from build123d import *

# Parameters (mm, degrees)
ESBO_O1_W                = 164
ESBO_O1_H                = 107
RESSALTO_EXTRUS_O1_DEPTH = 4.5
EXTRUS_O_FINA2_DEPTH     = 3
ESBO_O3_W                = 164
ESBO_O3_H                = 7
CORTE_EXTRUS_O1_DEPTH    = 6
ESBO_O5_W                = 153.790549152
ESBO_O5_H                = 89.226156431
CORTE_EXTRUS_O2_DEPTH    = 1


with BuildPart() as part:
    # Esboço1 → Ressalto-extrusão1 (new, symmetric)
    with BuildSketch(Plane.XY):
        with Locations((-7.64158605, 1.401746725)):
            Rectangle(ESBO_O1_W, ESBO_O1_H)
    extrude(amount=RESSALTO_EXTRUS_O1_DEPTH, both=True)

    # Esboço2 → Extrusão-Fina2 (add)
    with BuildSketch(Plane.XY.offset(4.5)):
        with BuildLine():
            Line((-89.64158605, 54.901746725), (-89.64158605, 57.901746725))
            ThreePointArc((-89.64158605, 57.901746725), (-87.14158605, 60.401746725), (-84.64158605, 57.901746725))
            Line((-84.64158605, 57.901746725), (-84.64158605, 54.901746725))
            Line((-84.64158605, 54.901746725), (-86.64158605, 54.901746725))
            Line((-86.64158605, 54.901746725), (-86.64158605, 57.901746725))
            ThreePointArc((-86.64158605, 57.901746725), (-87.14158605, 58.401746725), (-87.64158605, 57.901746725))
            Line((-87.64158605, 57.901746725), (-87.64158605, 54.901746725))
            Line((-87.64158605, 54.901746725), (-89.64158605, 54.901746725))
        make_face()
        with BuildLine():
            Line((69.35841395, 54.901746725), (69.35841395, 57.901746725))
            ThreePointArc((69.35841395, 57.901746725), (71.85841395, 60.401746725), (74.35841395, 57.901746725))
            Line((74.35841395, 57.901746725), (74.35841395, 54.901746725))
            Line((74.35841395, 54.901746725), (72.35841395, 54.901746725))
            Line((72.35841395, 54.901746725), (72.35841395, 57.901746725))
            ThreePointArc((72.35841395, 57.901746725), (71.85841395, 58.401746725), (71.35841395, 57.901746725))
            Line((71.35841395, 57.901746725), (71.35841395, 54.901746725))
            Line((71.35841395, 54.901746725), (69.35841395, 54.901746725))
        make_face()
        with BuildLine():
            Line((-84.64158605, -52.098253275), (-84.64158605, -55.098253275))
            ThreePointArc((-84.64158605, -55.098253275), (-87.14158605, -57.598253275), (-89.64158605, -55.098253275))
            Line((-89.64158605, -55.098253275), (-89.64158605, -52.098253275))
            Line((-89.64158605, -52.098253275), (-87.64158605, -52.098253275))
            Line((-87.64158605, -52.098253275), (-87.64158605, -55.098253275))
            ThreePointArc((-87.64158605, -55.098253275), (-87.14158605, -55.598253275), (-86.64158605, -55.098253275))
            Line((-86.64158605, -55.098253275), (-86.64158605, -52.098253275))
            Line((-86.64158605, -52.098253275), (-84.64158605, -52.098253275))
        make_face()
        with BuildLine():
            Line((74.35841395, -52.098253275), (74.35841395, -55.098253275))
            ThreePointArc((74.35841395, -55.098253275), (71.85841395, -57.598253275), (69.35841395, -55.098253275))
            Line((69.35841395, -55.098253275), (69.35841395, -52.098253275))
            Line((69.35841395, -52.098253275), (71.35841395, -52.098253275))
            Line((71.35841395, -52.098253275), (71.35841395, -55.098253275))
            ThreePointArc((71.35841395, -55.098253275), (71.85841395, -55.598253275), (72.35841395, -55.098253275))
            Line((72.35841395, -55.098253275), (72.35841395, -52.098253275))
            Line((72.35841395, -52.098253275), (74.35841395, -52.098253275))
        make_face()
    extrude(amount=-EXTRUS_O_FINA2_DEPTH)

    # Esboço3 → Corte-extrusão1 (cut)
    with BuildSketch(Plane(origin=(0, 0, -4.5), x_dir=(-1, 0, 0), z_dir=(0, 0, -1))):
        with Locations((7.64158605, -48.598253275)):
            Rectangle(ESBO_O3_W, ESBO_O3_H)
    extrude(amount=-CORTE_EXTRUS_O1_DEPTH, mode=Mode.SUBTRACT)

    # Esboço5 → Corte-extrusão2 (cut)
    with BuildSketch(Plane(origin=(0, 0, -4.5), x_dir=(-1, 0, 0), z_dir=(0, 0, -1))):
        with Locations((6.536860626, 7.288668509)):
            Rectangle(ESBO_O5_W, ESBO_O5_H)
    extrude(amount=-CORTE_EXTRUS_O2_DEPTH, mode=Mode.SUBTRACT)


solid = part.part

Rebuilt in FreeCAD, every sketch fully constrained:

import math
import FreeCAD as App
import Part
import Sketcher
from FreeCAD import Vector


def add_polygon(sketch, points):
    """Adds a closed chain of lines whose ends are joined by coincident constraints."""
    first, n = sketch.GeometryCount, len(points)
    for a, b in zip(points, points[1:] + points[:1]):
        sketch.addGeometry(Part.LineSegment(App.Vector(*a, 0), App.Vector(*b, 0)), False)
    for i in range(n):
        sketch.addConstraint(Sketcher.Constraint("Coincident", first + i, 2, first + (i + 1) % n, 1))

doc = App.newDocument("Part")
params = doc.addObject("Spreadsheet::Sheet", "Params")
for row, (alias, value) in enumerate([
    ("sketch1_width", "164 mm"),
    ("sketch1_height", "107 mm"),
    ("pad1_length", "9 mm"),
    ("sketch2_radius", "0.5 mm"),
    ("sketch2_radius2", "2.5 mm"),
    ("sketch2_height", "3 mm"),
    ("pad2_length", "3 mm"),
    ("sketch3_width", "164 mm"),
    ("sketch3_height", "7 mm"),
    ("pocket1_length", "6 mm"),
    ("pocket2_length", "1 mm"),
], start=1):
    params.set(f"A{row}", alias)
    params.set(f"B{row}", "=" + value)
    params.setAlias(f"B{row}", alias)

body = doc.addObject("PartDesign::Body", "Body")

# Sketch on XY plane
sketch1 = body.newObject("Sketcher::SketchObject", "Sketch")
sketch1.AttachmentSupport = (doc.getObject("XY_Plane"), [""])
sketch1.MapMode = "FlatFace"
add_polygon(sketch1, [(-90, 55), (-90, -52), (74, -52), (74, 55)])  # lines 0-3
sketch1.addConstraint([
    Sketcher.Constraint("Vertical", 0),
    Sketcher.Constraint("Horizontal", 1),
    Sketcher.Constraint("Vertical", 2),
    Sketcher.Constraint("Horizontal", 3),
    Sketcher.Constraint("DistanceX", 1, 1, 1, 2, 164.0),
    Sketcher.Constraint("DistanceY", 0, 2, 0, 1, 107.0),
    Sketcher.Constraint("DistanceX", 0, 2, -1, 1, 89.641586),
    Sketcher.Constraint("DistanceY", 0, 2, -1, 1, 52.098253),
])
sketch1.setExpression("Constraints[8]", "Params.sketch1_width")
sketch1.setExpression("Constraints[9]", "Params.sketch1_height")
pad1 = body.newObject("PartDesign::Pad", "Pad")
pad1.Profile = sketch1
pad1.setExpression("Length", "Params.pad1_length")
pad1.Midplane = True

# Sketch on XY plane
sketch2 = body.newObject("Sketcher::SketchObject", "Sketch001")
sketch2.AttachmentSupport = (doc.getObject("XY_Plane"), [""])
sketch2.MapMode = "FlatFace"
sketch2.AttachmentOffset = App.Placement(Vector(0, 0, 4.5), App.Rotation())
sketch2.addGeometry([
    Part.LineSegment(Vector(-89.6, 57.9, 0), Vector(-89.6, 54.9, 0)),  # 0
    Part.LineSegment(Vector(-89.6, 54.9, 0), Vector(-87.6, 54.9, 0)),  # 1
    Part.LineSegment(Vector(-87.6, 54.9, 0), Vector(-87.6, 57.9, 0)),  # 2
    Part.ArcOfCircle(Part.Circle(Vector(-87.1, 57.9, 0), Vector(0, 0, 1), 0.5), math.radians(0), math.radians(180)),  # 3
    Part.LineSegment(Vector(-86.6, 57.9, 0), Vector(-86.6, 54.9, 0)),  # 4
    Part.LineSegment(Vector(-86.6, 54.9, 0), Vector(-84.6, 54.9, 0)),  # 5
    Part.LineSegment(Vector(-84.6, 54.9, 0), Vector(-84.6, 57.9, 0)),  # 6
    Part.ArcOfCircle(Part.Circle(Vector(-87.1, 57.9, 0), Vector(0, 0, 1), 2.5), math.radians(0), math.radians(180)),  # 7
    Part.LineSegment(Vector(69.4, 57.9, 0), Vector(69.4, 54.9, 0)),  # 8
    Part.LineSegment(Vector(69.4, 54.9, 0), Vector(71.4, 54.9, 0)),  # 9
    Part.LineSegment(Vector(71.4, 54.9, 0), Vector(71.4, 57.9, 0)),  # 10
    Part.ArcOfCircle(Part.Circle(Vector(71.9, 57.9, 0), Vector(0, 0, 1), 0.5), math.radians(0), math.radians(180)),  # 11
    Part.LineSegment(Vector(72.4, 57.9, 0), Vector(72.4, 54.9, 0)),  # 12
    Part.LineSegment(Vector(72.4, 54.9, 0), Vector(74.4, 54.9, 0)),  # 13
    Part.LineSegment(Vector(74.4, 54.9, 0), Vector(74.4, 57.9, 0)),  # 14
    Part.ArcOfCircle(Part.Circle(Vector(71.9, 57.9, 0), Vector(0, 0, 1), 2.5), math.radians(0), math.radians(180)),  # 15
    Part.LineSegment(Vector(-84.6, -55.1, 0), Vector(-84.6, -52.1, 0)),  # 16
    Part.LineSegment(Vector(-84.6, -52.1, 0), Vector(-86.6, -52.1, 0)),  # 17
    Part.LineSegment(Vector(-86.6, -52.1, 0), Vector(-86.6, -55.1, 0)),  # 18
    Part.ArcOfCircle(Part.Circle(Vector(-87.1, -55.1, 0), Vector(0, 0, 1), 0.5), math.radians(180), math.radians(360)),  # 19
    Part.LineSegment(Vector(-87.6, -55.1, 0), Vector(-87.6, -52.1, 0)),  # 20
    Part.LineSegment(Vector(-87.6, -52.1, 0), Vector(-89.6, -52.1, 0)),  # 21
    Part.LineSegment(Vector(-89.6, -52.1, 0), Vector(-89.6, -55.1, 0)),  # 22
    Part.ArcOfCircle(Part.Circle(Vector(-87.1, -55.1, 0), Vector(0, 0, 1), 2.5), math.radians(180), math.radians(360)),  # 23
    Part.LineSegment(Vector(74.4, -55.1, 0), Vector(74.4, -52.1, 0)),  # 24
    Part.LineSegment(Vector(74.4, -52.1, 0), Vector(72.4, -52.1, 0)),  # 25
    Part.LineSegment(Vector(72.4, -52.1, 0), Vector(72.4, -55.1, 0)),  # 26
    Part.ArcOfCircle(Part.Circle(Vector(71.9, -55.1, 0), Vector(0, 0, 1), 0.5), math.radians(180), math.radians(360)),  # 27
    Part.LineSegment(Vector(71.4, -55.1, 0), Vector(71.4, -52.1, 0)),  # 28
    Part.LineSegment(Vector(71.4, -52.1, 0), Vector(69.4, -52.1, 0)),  # 29
    Part.LineSegment(Vector(69.4, -52.1, 0), Vector(69.4, -55.1, 0)),  # 30
    Part.ArcOfCircle(Part.Circle(Vector(71.9, -55.1, 0), Vector(0, 0, 1), 2.5), math.radians(180), math.radians(360)),  # 31
], False)
sketch2.addConstraint([
    Sketcher.Constraint("Coincident", 0, 2, 1, 1),
    Sketcher.Constraint("Coincident", 1, 2, 2, 1),
    Sketcher.Constraint("Tangent", 2, 2, 3, 2),
    Sketcher.Constraint("Tangent", 3, 1, 4, 1),
    Sketcher.Constraint("Coincident", 4, 2, 5, 1),
    Sketcher.Constraint("Coincident", 5, 2, 6, 1),
    Sketcher.Constraint("Tangent", 6, 2, 7, 1),
    Sketcher.Constraint("Tangent", 7, 2, 0, 1),
    Sketcher.Constraint("Coincident", 8, 2, 9, 1),
    Sketcher.Constraint("Coincident", 9, 2, 10, 1),
    Sketcher.Constraint("Tangent", 10, 2, 11, 2),
    Sketcher.Constraint("Tangent", 11, 1, 12, 1),
    Sketcher.Constraint("Coincident", 12, 2, 13, 1),
    Sketcher.Constraint("Coincident", 13, 2, 14, 1),
    Sketcher.Constraint("Tangent", 14, 2, 15, 1),
    Sketcher.Constraint("Tangent", 15, 2, 8, 1),
    Sketcher.Constraint("Coincident", 16, 2, 17, 1),
    Sketcher.Constraint("Coincident", 17, 2, 18, 1),
    Sketcher.Constraint("Tangent", 18, 2, 19, 2),
    Sketcher.Constraint("Tangent", 19, 1, 20, 1),
    Sketcher.Constraint("Coincident", 20, 2, 21, 1),
    Sketcher.Constraint("Coincident", 21, 2, 22, 1),
    Sketcher.Constraint("Tangent", 22, 2, 23, 1),
    Sketcher.Constraint("Tangent", 23, 2, 16, 1),
    Sketcher.Constraint("Coincident", 24, 2, 25, 1),
    Sketcher.Constraint("Coincident", 25, 2, 26, 1),
    Sketcher.Constraint("Tangent", 26, 2, 27, 2),
    Sketcher.Constraint("Tangent", 27, 1, 28, 1),
    Sketcher.Constraint("Coincident", 28, 2, 29, 1),
    Sketcher.Constraint("Coincident", 29, 2, 30, 1),
    Sketcher.Constraint("Tangent", 30, 2, 31, 1),
    Sketcher.Constraint("Tangent", 31, 2, 24, 1),
    Sketcher.Constraint("Vertical", 0),
    Sketcher.Constraint("Horizontal", 1),
    Sketcher.Constraint("Vertical", 2),
    Sketcher.Constraint("Vertical", 4),
    Sketcher.Constraint("Horizontal", 5),
    Sketcher.Constraint("Vertical", 6),
    Sketcher.Constraint("Vertical", 8),
    Sketcher.Constraint("Horizontal", 9),
    Sketcher.Constraint("Vertical", 10),
    Sketcher.Constraint("Vertical", 12),
    Sketcher.Constraint("Horizontal", 13),
    Sketcher.Constraint("Vertical", 14),
    Sketcher.Constraint("Vertical", 16),
    Sketcher.Constraint("Horizontal", 17),
    Sketcher.Constraint("Vertical", 18),
    Sketcher.Constraint("Vertical", 20),
    Sketcher.Constraint("Horizontal", 21),
    Sketcher.Constraint("Vertical", 22),
    Sketcher.Constraint("Vertical", 24),
    Sketcher.Constraint("Horizontal", 25),
    Sketcher.Constraint("Vertical", 26),
    Sketcher.Constraint("Vertical", 28),
    Sketcher.Constraint("Horizontal", 29),
    Sketcher.Constraint("Vertical", 30),
    Sketcher.Constraint("Coincident", 7, 3, 3, 3),
    Sketcher.Constraint("Coincident", 15, 3, 11, 3),
    Sketcher.Constraint("Coincident", 23, 3, 19, 3),
    Sketcher.Constraint("Coincident", 31, 3, 27, 3),
    Sketcher.Constraint("Equal", 3, 11),
    Sketcher.Constraint("Equal", 7, 15),
    Sketcher.Constraint("Equal", 11, 19),
    Sketcher.Constraint("Equal", 15, 23),
    Sketcher.Constraint("Equal", 19, 27),
    Sketcher.Constraint("Equal", 23, 31),
    Sketcher.Constraint("Horizontal", 7, 3, 11, 3),
    Sketcher.Constraint("Horizontal", 23, 3, 27, 3),
    Sketcher.Constraint("Horizontal", 1, 2, 4, 2),
    Sketcher.Constraint("Horizontal", 5, 2, 8, 2),
    Sketcher.Constraint("Horizontal", 9, 2, 12, 2),
    Sketcher.Constraint("Horizontal", 17, 2, 20, 2),
    Sketcher.Constraint("Horizontal", 21, 2, 24, 2),
    Sketcher.Constraint("Horizontal", 25, 2, 28, 2),
    Sketcher.Constraint("Vertical", 7, 3, 19, 3),
    Sketcher.Constraint("Vertical", 15, 3, 27, 3),
    Sketcher.Constraint("Equal", 14, 16),
    Sketcher.Constraint("Radius", 3, 0.5),
    Sketcher.Constraint("Radius", 7, 2.5),
    Sketcher.Constraint("DistanceY", 0, 2, 0, 1, 3.0),
    Sketcher.Constraint("DistanceX", 3, 3, 11, 3, 159.0),
    Sketcher.Constraint("DistanceY", 19, 3, 3, 3, 113.0),
    Sketcher.Constraint("DistanceX", 3, 3, -1, 1, 87.141586),
    Sketcher.Constraint("DistanceY", -1, 1, 3, 3, 57.901747),
])
sketch2.setExpression("Constraints[77]", "Params.sketch2_radius")
sketch2.setExpression("Constraints[78]", "Params.sketch2_radius2")
sketch2.setExpression("Constraints[79]", "Params.sketch2_height")
pad2 = body.newObject("PartDesign::Pad", "Pad001")
pad2.Profile = sketch2
pad2.setExpression("Length", "Params.pad2_length")
pad2.Reversed = True

# Sketch on XY plane
sketch3 = body.newObject("Sketcher::SketchObject", "Sketch002")
sketch3.AttachmentSupport = (doc.getObject("XY_Plane"), [""])
sketch3.MapMode = "FlatFace"
sketch3.AttachmentOffset = App.Placement(Vector(0, 0, -4.5), App.Rotation())
add_polygon(sketch3, [(74, -45), (74, -52), (-90, -52), (-90, -45)])  # lines 0-3
sketch3.addConstraint([
    Sketcher.Constraint("Vertical", 0),
    Sketcher.Constraint("Horizontal", 1),
    Sketcher.Constraint("Vertical", 2),
    Sketcher.Constraint("Horizontal", 3),
    Sketcher.Constraint("DistanceX", 1, 2, 1, 1, 164.0),
    Sketcher.Constraint("DistanceY", 0, 2, 0, 1, 7.0),
    Sketcher.Constraint("DistanceX", -1, 1, 0, 2, 74.358414),
    Sketcher.Constraint("DistanceY", 0, 2, -1, 1, 52.098253),
])
sketch3.setExpression("Constraints[8]", "Params.sketch3_width")
sketch3.setExpression("Constraints[9]", "Params.sketch3_height")
pocket1 = body.newObject("PartDesign::Pocket", "Pocket")
pocket1.Profile = sketch3
pocket1.setExpression("Length", "Params.pocket1_length")
pocket1.Reversed = True

# Sketch on XY plane
sketch4 = body.newObject("Sketcher::SketchObject", "Sketch003")
sketch4.AttachmentSupport = (doc.getObject("XY_Plane"), [""])
sketch4.MapMode = "FlatFace"
sketch4.AttachmentOffset = App.Placement(Vector(0, 0, -4.5), App.Rotation())
add_polygon(sketch4, [(70, 52), (70, -37), (-83, -37), (-83, 52)])  # lines 0-3
sketch4.addConstraint([
    Sketcher.Constraint("Vertical", 0),
    Sketcher.Constraint("Horizontal", 1),
    Sketcher.Constraint("Vertical", 2),
    Sketcher.Constraint("Horizontal", 3),
    Sketcher.Constraint("DistanceX", 1, 2, 1, 1, 153.790549),
    Sketcher.Constraint("DistanceY", 0, 2, 0, 1, 89.226156),
    Sketcher.Constraint("DistanceY", 0, 2, -1, 1, 37.32441),
    Sketcher.Constraint("DistanceX", -1, 1, 0, 2, 70.358414),
])
pocket2 = body.newObject("PartDesign::Pocket", "Pocket001")
pocket2.Profile = sketch4
pocket2.setExpression("Length", "Params.pocket2_length")
pocket2.Reversed = True

doc.recompute()
